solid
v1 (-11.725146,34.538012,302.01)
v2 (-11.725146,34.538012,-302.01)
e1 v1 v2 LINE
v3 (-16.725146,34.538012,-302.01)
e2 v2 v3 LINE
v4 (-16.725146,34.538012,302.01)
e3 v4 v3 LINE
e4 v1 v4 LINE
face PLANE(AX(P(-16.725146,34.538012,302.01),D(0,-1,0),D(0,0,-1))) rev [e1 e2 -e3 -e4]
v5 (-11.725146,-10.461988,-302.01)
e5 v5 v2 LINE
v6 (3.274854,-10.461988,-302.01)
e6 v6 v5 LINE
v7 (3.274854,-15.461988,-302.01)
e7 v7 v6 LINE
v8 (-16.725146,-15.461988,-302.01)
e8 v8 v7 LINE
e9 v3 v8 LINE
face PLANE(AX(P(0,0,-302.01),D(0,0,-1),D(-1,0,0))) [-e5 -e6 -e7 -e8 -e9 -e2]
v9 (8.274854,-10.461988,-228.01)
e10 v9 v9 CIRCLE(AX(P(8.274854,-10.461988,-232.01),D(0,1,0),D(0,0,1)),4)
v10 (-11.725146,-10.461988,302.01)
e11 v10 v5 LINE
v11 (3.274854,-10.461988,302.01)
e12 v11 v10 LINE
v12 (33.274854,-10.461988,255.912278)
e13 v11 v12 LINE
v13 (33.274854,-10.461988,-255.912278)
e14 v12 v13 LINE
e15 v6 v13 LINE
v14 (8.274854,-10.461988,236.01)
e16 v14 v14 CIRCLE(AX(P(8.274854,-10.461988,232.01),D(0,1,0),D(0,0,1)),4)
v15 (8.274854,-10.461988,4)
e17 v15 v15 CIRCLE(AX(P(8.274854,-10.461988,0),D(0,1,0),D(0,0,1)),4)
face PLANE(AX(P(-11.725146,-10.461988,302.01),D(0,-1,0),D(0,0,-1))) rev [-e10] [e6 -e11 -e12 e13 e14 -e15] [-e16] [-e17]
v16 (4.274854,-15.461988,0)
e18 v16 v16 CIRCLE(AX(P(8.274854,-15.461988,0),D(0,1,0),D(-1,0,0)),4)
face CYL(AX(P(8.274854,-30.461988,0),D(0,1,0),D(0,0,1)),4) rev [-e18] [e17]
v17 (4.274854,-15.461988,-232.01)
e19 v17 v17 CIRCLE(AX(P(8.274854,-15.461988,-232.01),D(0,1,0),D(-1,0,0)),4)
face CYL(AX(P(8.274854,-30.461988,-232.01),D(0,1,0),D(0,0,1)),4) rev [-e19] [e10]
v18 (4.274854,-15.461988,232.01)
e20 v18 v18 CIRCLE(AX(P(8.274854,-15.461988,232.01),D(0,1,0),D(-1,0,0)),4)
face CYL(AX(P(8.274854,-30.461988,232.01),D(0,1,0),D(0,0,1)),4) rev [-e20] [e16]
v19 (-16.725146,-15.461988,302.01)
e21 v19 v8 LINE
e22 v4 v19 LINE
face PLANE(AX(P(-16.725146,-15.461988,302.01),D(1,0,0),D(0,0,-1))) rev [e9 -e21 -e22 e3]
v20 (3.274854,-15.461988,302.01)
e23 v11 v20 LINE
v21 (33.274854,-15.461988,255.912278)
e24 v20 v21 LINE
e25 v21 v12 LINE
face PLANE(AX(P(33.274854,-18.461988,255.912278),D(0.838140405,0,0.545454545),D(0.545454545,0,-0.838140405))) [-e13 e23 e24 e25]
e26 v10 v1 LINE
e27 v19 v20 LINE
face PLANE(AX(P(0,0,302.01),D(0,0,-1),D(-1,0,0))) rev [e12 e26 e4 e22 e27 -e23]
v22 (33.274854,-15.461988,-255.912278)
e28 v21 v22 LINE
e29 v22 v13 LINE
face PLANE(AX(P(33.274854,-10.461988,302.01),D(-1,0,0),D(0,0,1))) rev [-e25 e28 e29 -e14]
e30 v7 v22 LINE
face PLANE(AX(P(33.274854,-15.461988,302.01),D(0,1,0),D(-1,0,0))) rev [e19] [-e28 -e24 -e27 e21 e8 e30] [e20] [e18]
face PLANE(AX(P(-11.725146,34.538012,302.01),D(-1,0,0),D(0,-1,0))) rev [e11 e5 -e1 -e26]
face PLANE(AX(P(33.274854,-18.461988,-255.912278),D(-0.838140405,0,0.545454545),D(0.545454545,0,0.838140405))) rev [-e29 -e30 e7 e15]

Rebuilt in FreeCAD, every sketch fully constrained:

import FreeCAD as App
import Part
import Sketcher
Q = App.Units.Quantity

doc = App.newDocument("Part")
params = doc.addObject("Spreadsheet::Sheet", "Params")
for row, (alias, value) in enumerate([
    ("sketch1_width", "5 mm"),
    ("sketch1_width2", "50 mm"),
    ("pad1_length", "604.02 mm"),
    ("sketch2_diameter", "8 mm"),
    ("pocket1_length", "20 mm"),
    ("sketch3_width", "30 mm"),
    ("sketch3_length", "55 mm"),
    ("pocket2_length", "8 mm"),
    ("linearpattern_pitch", "232.01 mm"),
], start=1):
    params.set(f"A{row}", alias)
    params.set(f"B{row}", "=" + value)
    params.setAlias(f"B{row}", alias)

body = doc.addObject("PartDesign::Body", "Body")

# Sketch on XY plane
sketch1 = body.newObject("Sketcher::SketchObject", "Sketch")
sketch1.AttachmentSupport = (doc.getObject("XY_Plane"), [""])
sketch1.MapMode = "FlatFace"
sketch1.addGeometry(Part.LineSegment(App.Vector(-12, 35, 0), App.Vector(-17, 35, 0)), False)
sketch1.addGeometry(Part.LineSegment(App.Vector(-17, 35, 0), App.Vector(-17, -15, 0)), False)
sketch1.addGeometry(Part.LineSegment(App.Vector(-17, -15, 0), App.Vector(33, -15, 0)), False)
sketch1.addGeometry(Part.LineSegment(App.Vector(33, -15, 0), App.Vector(33, -10, 0)), False)
sketch1.addGeometry(Part.LineSegment(App.Vector(33, -10, 0), App.Vector(-12, -10, 0)), False)
sketch1.addGeometry(Part.LineSegment(App.Vector(-12, -10, 0), App.Vector(-12, 35, 0)), False)
sketch1.addConstraint(Sketcher.Constraint("Coincident", 0, 2, 1, 1))
sketch1.addConstraint(Sketcher.Constraint("Coincident", 1, 2, 2, 1))
sketch1.addConstraint(Sketcher.Constraint("Coincident", 2, 2, 3, 1))
sketch1.addConstraint(Sketcher.Constraint("Coincident", 3, 2, 4, 1))
sketch1.addConstraint(Sketcher.Constraint("Coincident", 4, 2, 5, 1))
sketch1.addConstraint(Sketcher.Constraint("Coincident", 5, 2, 0, 1))
sketch1.addConstraint(Sketcher.Constraint("Horizontal", 0))
sketch1.addConstraint(Sketcher.Constraint("Vertical", 1))
sketch1.addConstraint(Sketcher.Constraint("Horizontal", 2))
sketch1.addConstraint(Sketcher.Constraint("Vertical", 3))
sketch1.addConstraint(Sketcher.Constraint("Horizontal", 4))
sketch1.addConstraint(Sketcher.Constraint("Vertical", 5))
sketch1.addConstraint(Sketcher.Constraint("Equal", 2, 1))
sketch1.addConstraint(Sketcher.Constraint("Equal", 0, 3))
sketch1.addConstraint(Sketcher.Constraint("DistanceX", 0, 2, 0, 1, Q("5 mm")))
sketch1.addConstraint(Sketcher.Constraint("DistanceX", 2, 1, 2, 2, Q("50 mm")))
sketch1.addConstraint(Sketcher.Constraint("DistanceY", -1, 1, 0, 2, Q("34.538012 mm")))
sketch1.addConstraint(Sketcher.Constraint("DistanceX", 0, 2, -1, 1, Q("16.725146 mm")))
sketch1.setExpression("Constraints[14]", "Params.sketch1_width")
sketch1.setExpression("Constraints[15]", "Params.sketch1_width2")
pad1 = body.newObject("PartDesign::Pad", "Pad")
pad1.Profile = sketch1
pad1.setExpression("Length", "Params.pad1_length")
pad1.Midplane = True

# Sketch on XZ plane
sketch2 = body.newObject("Sketcher::SketchObject", "Sketch001")
sketch2.AttachmentSupport = (doc.getObject("XZ_Plane"), [""])
sketch2.MapMode = "FlatFace"
sketch2.AttachmentOffset = App.Placement(App.Vector(0, 0, 10.461988), App.Rotation())
sketch2.addGeometry(Part.Circle(App.Vector(8.3, -232, 0), App.Vector(0, 0, 1), 4), False)
sketch2.addConstraint(Sketcher.Constraint("Diameter", 0, Q("8 mm")))
sketch2.addConstraint(Sketcher.Constraint("DistanceY", 0, 3, -1, 1, Q("232.01 mm")))
sketch2.addConstraint(Sketcher.Constraint("DistanceX", -1, 1, 0, 3, Q("8.274854 mm")))
sketch2.setExpression("Constraints[0]", "Params.sketch2_diameter")
pocket1 = body.newObject("PartDesign::Pocket", "Pocket")
pocket1.Profile = sketch2
pocket1.setExpression("Length", "Params.pocket1_length")
pocket1.Reversed = True

# Sketch on XZ plane
sketch3 = body.newObject("Sketcher::SketchObject", "Sketch002")
sketch3.AttachmentSupport = (doc.getObject("XZ_Plane"), [""])
sketch3.MapMode = "FlatFace"
sketch3.AttachmentOffset = App.Placement(App.Vector(0, 0, 10.461988), App.Rotation())
sketch3.addGeometry(Part.LineSegment(App.Vector(3, -302, 0), App.Vector(33, -256, 0)), False)
sketch3.addGeometry(Part.LineSegment(App.Vector(33, -256, 0), App.Vector(33, -302, 0)), False)
sketch3.addGeometry(Part.LineSegment(App.Vector(33, -302, 0), App.Vector(3, -302, 0)), False)
sketch3.addConstraint(Sketcher.Constraint("Coincident", 0, 2, 1, 1))
sketch3.addConstraint(Sketcher.Constraint("Coincident", 1, 2, 2, 1))
sketch3.addConstraint(Sketcher.Constraint("Coincident", 2, 2, 0, 1))
sketch3.addConstraint(Sketcher.Constraint("Vertical", 1))
sketch3.addConstraint(Sketcher.Constraint("Horizontal", 2))
sketch3.addConstraint(Sketcher.Constraint("DistanceX", 2, 2, 2, 1, Q("30 mm")))
sketch3.addConstraint(Sketcher.Constraint("Distance", 0, Q("55 mm")))
sketch3.addConstraint(Sketcher.Constraint("DistanceY", 1, 2, -1, 1, Q("302.01 mm")))
sketch3.addConstraint(Sketcher.Constraint("DistanceX", -1, 1, 0, 2, Q("33.274854 mm")))
sketch3.setExpression("Constraints[5]", "Params.sketch3_width")
sketch3.setExpression("Constraints[6]", "Params.sketch3_length")
pocket2 = body.newObject("PartDesign::Pocket", "Pocket001")
pocket2.Profile = sketch3
pocket2.setExpression("Length", "Params.pocket2_length")
pocket2.Reversed = True
doc.recompute()

mirrored = body.newObject("PartDesign::Mirrored", "Mirrored")
mirrored.Originals = [pocket2]
mirrored.MirrorPlane = (doc.getObject("XY_Plane"), [""])
body.Tip = mirrored
doc.recompute()

linearpattern = body.newObject("PartDesign::LinearPattern", "LinearPattern")
linearpattern.Originals = [pocket1]
linearpattern.Direction = (doc.getObject("Z_Axis"), [""])
linearpattern.Mode = "offset"
linearpattern.setExpression("Offset", "Params.linearpattern_pitch")
linearpattern.Occurrences = 3
body.Tip = linearpattern

doc.recompute()
